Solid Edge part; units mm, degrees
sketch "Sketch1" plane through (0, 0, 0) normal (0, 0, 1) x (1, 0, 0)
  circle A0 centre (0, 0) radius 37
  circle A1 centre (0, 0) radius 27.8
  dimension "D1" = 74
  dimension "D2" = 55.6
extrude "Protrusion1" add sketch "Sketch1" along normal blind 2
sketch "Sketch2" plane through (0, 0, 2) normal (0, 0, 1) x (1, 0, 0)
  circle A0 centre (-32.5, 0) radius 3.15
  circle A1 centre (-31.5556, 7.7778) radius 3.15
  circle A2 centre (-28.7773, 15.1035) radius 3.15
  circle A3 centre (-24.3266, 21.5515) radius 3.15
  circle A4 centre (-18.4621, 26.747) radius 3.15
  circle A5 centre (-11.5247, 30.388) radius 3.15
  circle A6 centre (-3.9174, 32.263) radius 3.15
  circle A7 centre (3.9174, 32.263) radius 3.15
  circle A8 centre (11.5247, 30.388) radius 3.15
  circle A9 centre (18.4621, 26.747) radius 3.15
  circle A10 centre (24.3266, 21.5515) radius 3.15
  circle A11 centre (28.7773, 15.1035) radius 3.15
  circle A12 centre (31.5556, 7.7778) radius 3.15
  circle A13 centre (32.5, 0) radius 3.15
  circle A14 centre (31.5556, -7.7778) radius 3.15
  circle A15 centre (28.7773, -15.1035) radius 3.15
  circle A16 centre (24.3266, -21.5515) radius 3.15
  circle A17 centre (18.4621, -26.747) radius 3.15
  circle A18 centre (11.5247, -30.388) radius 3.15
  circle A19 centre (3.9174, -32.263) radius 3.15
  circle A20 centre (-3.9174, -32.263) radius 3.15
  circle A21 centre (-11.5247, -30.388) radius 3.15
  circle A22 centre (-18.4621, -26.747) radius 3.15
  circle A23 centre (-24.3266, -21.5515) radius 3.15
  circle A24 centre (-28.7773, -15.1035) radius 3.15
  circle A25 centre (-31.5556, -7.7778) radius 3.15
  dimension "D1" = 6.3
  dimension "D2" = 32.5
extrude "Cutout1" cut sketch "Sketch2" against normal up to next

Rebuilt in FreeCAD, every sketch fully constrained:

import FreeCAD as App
import Part
import Sketcher
from FreeCAD import Vector

doc = App.newDocument("Part")
body = doc.addObject("PartDesign::Body", "Body")

# Sketch on XY plane
sketch1 = body.newObject("Sketcher::SketchObject", "Sketch")
sketch1.AttachmentSupport = (doc.getObject("XY_Plane"), [""])
sketch1.MapMode = "FlatFace"
sketch1.addGeometry(Part.Circle(Vector(0, 0, 0), Vector(0, 0, 1), 37), False)
sketch1.addGeometry(Part.Circle(Vector(0, 0, 0), Vector(0, 0, 1), 28), False)
sketch1.addConstraint(Sketcher.Constraint("Coincident", 0, 3, -1, 1))
sketch1.addConstraint(Sketcher.Constraint("Coincident", 1, 3, -1, 1))
sketch1.addConstraint(Sketcher.Constraint("Diameter", 0, 74.0))
sketch1.addConstraint(Sketcher.Constraint("Diameter", 1, 55.6))
pad1 = body.newObject("PartDesign::Pad", "Pad")
pad1.Profile = sketch1
pad1.Length = 2

# Sketch on XY plane
sketch2 = body.newObject("Sketcher::SketchObject", "Sketch001")
sketch2.AttachmentSupport = (doc.getObject("XY_Plane"), [""])
sketch2.MapMode = "FlatFace"
sketch2.AttachmentOffset = App.Placement(Vector(0, 0, 2), App.Rotation())
sketch2.addGeometry(Part.Circle(Vector(-32.5, 0, 0), Vector(0, 0, 1), 3.1), False)
sketch2.addGeometry(Part.Circle(Vector(-31.6, 7.8, 0), Vector(0, 0, 1), 3.1), False)
sketch2.addGeometry(Part.Circle(Vector(-28.8, 15.1, 0), Vector(0, 0, 1), 3.1), False)
sketch2.addGeometry(Part.Circle(Vector(-24.3, 21.6, 0), Vector(0, 0, 1), 3.1), False)
sketch2.addGeometry(Part.Circle(Vector(-18.5, 26.7, 0), Vector(0, 0, 1), 3.1), False)
sketch2.addGeometry(Part.Circle(Vector(-11.5, 30.4, 0), Vector(0, 0, 1), 3.1), False)
sketch2.addGeometry(Part.Circle(Vector(-3.9, 32.3, 0), Vector(0, 0, 1), 3.1), False)
sketch2.addGeometry(Part.Circle(Vector(3.9, 32.3, 0), Vector(0, 0, 1), 3.1), False)
sketch2.addGeometry(Part.Circle(Vector(11.5, 30.4, 0), Vector(0, 0, 1), 3.1), False)
sketch2.addGeometry(Part.Circle(Vector(18.5, 26.7, 0), Vector(0, 0, 1), 3.1), False)
sketch2.addGeometry(Part.Circle(Vector(24.3, 21.6, 0), Vector(0, 0, 1), 3.1), False)
sketch2.addGeometry(Part.Circle(Vector(28.8, 15.1, 0), Vector(0, 0, 1), 3.1), False)
sketch2.addGeometry(Part.Circle(Vector(31.6, 7.8, 0), Vector(0, 0, 1), 3.1), False)
sketch2.addGeometry(Part.Circle(Vector(32.5, 0, 0), Vector(0, 0, 1), 3.1), False)
sketch2.addGeometry(Part.Circle(Vector(31.6, -7.8, 0), Vector(0, 0, 1), 3.1), False)
sketch2.addGeometry(Part.Circle(Vector(28.8, -15.1, 0), Vector(0, 0, 1), 3.1), False)
sketch2.addGeometry(Part.Circle(Vector(24.3, -21.6, 0), Vector(0, 0, 1), 3.1), False)
sketch2.addGeometry(Part.Circle(Vector(18.5, -26.7, 0), Vector(0, 0, 1), 3.1), False)
sketch2.addGeometry(Part.Circle(Vector(11.5, -30.4, 0), Vector(0, 0, 1), 3.1), False)
sketch2.addGeometry(Part.Circle(Vector(3.9, -32.3, 0), Vector(0, 0, 1), 3.1), False)
sketch2.addGeometry(Part.Circle(Vector(-3.9, -32.3, 0), Vector(0, 0, 1), 3.1), False)
sketch2.addGeometry(Part.Circle(Vector(-11.5, -30.4, 0), Vector(0, 0, 1), 3.1), False)
sketch2.addGeometry(Part.Circle(Vector(-18.5, -26.7, 0), Vector(0, 0, 1), 3.1), False)
sketch2.addGeometry(Part.Circle(Vector(-24.3, -21.6, 0), Vector(0, 0, 1), 3.1), False)
sketch2.addGeometry(Part.Circle(Vector(-28.8, -15.1, 0), Vector(0, 0, 1), 3.1), False)
sketch2.addGeometry(Part.Circle(Vector(-31.6, -7.8, 0), Vector(0, 0, 1), 3.1), False)
sketch2.addConstraint(Sketcher.Constraint("Equal", 0, 1))
sketch2.addConstraint(Sketcher.Constraint("Equal", 1, 2))
sketch2.addConstraint(Sketcher.Constraint("Equal", 2, 3))
sketch2.addConstraint(Sketcher.Constraint("Equal", 3, 4))
sketch2.addConstraint(Sketcher.Constraint("Equal", 4, 5))
sketch2.addConstraint(Sketcher.Constraint("Equal", 5, 6))
sketch2.addConstraint(Sketcher.Constraint("Equal", 6, 7))
sketch2.addConstraint(Sketcher.Constraint("Equal", 7, 8))
sketch2.addConstraint(Sketcher.Constraint("Equal", 8, 9))
sketch2.addConstraint(Sketcher.Constraint("Equal", 9, 10))
sketch2.addConstraint(Sketcher.Constraint("Equal", 10, 11))
sketch2.addConstraint(Sketcher.Constraint("Equal", 11, 12))
sketch2.addConstraint(Sketcher.Constraint("Equal", 12, 13))
sketch2.addConstraint(Sketcher.Constraint("Equal", 13, 14))
sketch2.addConstraint(Sketcher.Constraint("Equal", 14, 15))
sketch2.addConstraint(Sketcher.Constraint("Equal", 15, 16))
sketch2.addConstraint(Sketcher.Constraint("Equal", 16, 17))
sketch2.addConstraint(Sketcher.Constraint("Equal", 17, 18))
sketch2.addConstraint(Sketcher.Constraint("Equal", 18, 19))
sketch2.addConstraint(Sketcher.Constraint("Equal", 19, 20))
sketch2.addConstraint(Sketcher.Constraint("Equal", 20, 21))
sketch2.addConstraint(Sketcher.Constraint("Equal", 21, 22))
sketch2.addConstraint(Sketcher.Constraint("Equal", 22, 23))
sketch2.addConstraint(Sketcher.Constraint("Equal", 23, 24))
sketch2.addConstraint(Sketcher.Constraint("Equal", 24, 25))
sketch2.addConstraint(Sketcher.Constraint("Symmetric", 0, 3, 13, 3, -1, 1))
sketch2.addConstraint(Sketcher.Constraint("Symmetric", 1, 3, 14, 3, -1, 1))
sketch2.addConstraint(Sketcher.Constraint("Symmetric", 2, 3, 15, 3, -1, 1))
sketch2.addConstraint(Sketcher.Constraint("Symmetric", 3, 3, 16, 3, -1, 1))
sketch2.addConstraint(Sketcher.Constraint("Symmetric", 4, 3, 17, 3, -1, 1))
sketch2.addConstraint(Sketcher.Constraint("Symmetric", 5, 3, 18, 3, -1, 1))
sketch2.addConstraint(Sketcher.Constraint("Symmetric", 6, 3, 19, 3, -1, 1))
sketch2.addConstraint(Sketcher.Constraint("Symmetric", 7, 3, 20, 3, -1, 1))
sketch2.addConstraint(Sketcher.Constraint("Symmetric", 8, 3, 21, 3, -1, 1))
sketch2.addConstraint(Sketcher.Constraint("Symmetric", 9, 3, 22, 3, -1, 1))
sketch2.addConstraint(Sketcher.Constraint("Symmetric", 10, 3, 23, 3, -1, 1))
sketch2.addConstraint(Sketcher.Constraint("Symmetric", 11, 3, 24, 3, -1, 1))
sketch2.addConstraint(Sketcher.Constraint("Symmetric", 12, 3, 25, 3, -1, 1))
sketch2.addConstraint(Sketcher.Constraint("Symmetric", 6, 3, 7, 3, -2))
sketch2.addConstraint(Sketcher.Constraint("Symmetric", 5, 3, 8, 3, -2))
sketch2.addConstraint(Sketcher.Constraint("Symmetric", 4, 3, 9, 3, -2))
sketch2.addConstraint(Sketcher.Constraint("Symmetric", 3, 3, 10, 3, -2))
sketch2.addConstraint(Sketcher.Constraint("Symmetric", 2, 3, 11, 3, -2))
sketch2.addConstraint(Sketcher.Constraint("Symmetric", 1, 3, 12, 3, -2))
sketch2.addConstraint(Sketcher.Constraint("PointOnObject", 0, 3, -1))
sketch2.addConstraint(Sketcher.Constraint("Diameter", 0, 6.3))
sketch2.addConstraint(Sketcher.Constraint("DistanceX", 0, 3, -1, 1, 32.5))
sketch2.addConstraint(Sketcher.Constraint("DistanceX", 2, 3, 6, 3, 24.86))
sketch2.addConstraint(Sketcher.Constraint("DistanceX", 4, 3, -1, 1, 18.462))
sketch2.addConstraint(Sketcher.Constraint("DistanceY", -1, 1, 4, 3, 26.747))
sketch2.addConstraint(Sketcher.Constraint("DistanceY", -1, 1, 5, 3, 30.388))
sketch2.addConstraint(Sketcher.Constraint("DistanceY", -1, 1, 6, 3, 32.263))
sketch2.addConstraint(Sketcher.Constraint("DistanceY", 2, 3, 3, 3, 6.448))
sketch2.addConstraint(Sketcher.Constraint("DistanceX", 1, 3, 3, 3, 7.229))
sketch2.addConstraint(Sketcher.Constraint("DistanceX", 3, 3, 5, 3, 12.802))
sketch2.addConstraint(Sketcher.Constraint("DistanceX", 5, 3, 7, 3, 15.442))
sketch2.addConstraint(Sketcher.Constraint("DistanceY", 15, 3, 11, 3, 30.207))
sketch2.addConstraint(Sketcher.Constraint("DistanceX", 1, 3, -1, 1, 31.5556))
sketch2.addConstraint(Sketcher.Constraint("DistanceY", -1, 1, 1, 3, 7.7778))
pocket1 = body.newObject("PartDesign::Pocket", "Pocket")
pocket1.Profile = sketch2
pocket1.Length = 2

doc.recompute()
